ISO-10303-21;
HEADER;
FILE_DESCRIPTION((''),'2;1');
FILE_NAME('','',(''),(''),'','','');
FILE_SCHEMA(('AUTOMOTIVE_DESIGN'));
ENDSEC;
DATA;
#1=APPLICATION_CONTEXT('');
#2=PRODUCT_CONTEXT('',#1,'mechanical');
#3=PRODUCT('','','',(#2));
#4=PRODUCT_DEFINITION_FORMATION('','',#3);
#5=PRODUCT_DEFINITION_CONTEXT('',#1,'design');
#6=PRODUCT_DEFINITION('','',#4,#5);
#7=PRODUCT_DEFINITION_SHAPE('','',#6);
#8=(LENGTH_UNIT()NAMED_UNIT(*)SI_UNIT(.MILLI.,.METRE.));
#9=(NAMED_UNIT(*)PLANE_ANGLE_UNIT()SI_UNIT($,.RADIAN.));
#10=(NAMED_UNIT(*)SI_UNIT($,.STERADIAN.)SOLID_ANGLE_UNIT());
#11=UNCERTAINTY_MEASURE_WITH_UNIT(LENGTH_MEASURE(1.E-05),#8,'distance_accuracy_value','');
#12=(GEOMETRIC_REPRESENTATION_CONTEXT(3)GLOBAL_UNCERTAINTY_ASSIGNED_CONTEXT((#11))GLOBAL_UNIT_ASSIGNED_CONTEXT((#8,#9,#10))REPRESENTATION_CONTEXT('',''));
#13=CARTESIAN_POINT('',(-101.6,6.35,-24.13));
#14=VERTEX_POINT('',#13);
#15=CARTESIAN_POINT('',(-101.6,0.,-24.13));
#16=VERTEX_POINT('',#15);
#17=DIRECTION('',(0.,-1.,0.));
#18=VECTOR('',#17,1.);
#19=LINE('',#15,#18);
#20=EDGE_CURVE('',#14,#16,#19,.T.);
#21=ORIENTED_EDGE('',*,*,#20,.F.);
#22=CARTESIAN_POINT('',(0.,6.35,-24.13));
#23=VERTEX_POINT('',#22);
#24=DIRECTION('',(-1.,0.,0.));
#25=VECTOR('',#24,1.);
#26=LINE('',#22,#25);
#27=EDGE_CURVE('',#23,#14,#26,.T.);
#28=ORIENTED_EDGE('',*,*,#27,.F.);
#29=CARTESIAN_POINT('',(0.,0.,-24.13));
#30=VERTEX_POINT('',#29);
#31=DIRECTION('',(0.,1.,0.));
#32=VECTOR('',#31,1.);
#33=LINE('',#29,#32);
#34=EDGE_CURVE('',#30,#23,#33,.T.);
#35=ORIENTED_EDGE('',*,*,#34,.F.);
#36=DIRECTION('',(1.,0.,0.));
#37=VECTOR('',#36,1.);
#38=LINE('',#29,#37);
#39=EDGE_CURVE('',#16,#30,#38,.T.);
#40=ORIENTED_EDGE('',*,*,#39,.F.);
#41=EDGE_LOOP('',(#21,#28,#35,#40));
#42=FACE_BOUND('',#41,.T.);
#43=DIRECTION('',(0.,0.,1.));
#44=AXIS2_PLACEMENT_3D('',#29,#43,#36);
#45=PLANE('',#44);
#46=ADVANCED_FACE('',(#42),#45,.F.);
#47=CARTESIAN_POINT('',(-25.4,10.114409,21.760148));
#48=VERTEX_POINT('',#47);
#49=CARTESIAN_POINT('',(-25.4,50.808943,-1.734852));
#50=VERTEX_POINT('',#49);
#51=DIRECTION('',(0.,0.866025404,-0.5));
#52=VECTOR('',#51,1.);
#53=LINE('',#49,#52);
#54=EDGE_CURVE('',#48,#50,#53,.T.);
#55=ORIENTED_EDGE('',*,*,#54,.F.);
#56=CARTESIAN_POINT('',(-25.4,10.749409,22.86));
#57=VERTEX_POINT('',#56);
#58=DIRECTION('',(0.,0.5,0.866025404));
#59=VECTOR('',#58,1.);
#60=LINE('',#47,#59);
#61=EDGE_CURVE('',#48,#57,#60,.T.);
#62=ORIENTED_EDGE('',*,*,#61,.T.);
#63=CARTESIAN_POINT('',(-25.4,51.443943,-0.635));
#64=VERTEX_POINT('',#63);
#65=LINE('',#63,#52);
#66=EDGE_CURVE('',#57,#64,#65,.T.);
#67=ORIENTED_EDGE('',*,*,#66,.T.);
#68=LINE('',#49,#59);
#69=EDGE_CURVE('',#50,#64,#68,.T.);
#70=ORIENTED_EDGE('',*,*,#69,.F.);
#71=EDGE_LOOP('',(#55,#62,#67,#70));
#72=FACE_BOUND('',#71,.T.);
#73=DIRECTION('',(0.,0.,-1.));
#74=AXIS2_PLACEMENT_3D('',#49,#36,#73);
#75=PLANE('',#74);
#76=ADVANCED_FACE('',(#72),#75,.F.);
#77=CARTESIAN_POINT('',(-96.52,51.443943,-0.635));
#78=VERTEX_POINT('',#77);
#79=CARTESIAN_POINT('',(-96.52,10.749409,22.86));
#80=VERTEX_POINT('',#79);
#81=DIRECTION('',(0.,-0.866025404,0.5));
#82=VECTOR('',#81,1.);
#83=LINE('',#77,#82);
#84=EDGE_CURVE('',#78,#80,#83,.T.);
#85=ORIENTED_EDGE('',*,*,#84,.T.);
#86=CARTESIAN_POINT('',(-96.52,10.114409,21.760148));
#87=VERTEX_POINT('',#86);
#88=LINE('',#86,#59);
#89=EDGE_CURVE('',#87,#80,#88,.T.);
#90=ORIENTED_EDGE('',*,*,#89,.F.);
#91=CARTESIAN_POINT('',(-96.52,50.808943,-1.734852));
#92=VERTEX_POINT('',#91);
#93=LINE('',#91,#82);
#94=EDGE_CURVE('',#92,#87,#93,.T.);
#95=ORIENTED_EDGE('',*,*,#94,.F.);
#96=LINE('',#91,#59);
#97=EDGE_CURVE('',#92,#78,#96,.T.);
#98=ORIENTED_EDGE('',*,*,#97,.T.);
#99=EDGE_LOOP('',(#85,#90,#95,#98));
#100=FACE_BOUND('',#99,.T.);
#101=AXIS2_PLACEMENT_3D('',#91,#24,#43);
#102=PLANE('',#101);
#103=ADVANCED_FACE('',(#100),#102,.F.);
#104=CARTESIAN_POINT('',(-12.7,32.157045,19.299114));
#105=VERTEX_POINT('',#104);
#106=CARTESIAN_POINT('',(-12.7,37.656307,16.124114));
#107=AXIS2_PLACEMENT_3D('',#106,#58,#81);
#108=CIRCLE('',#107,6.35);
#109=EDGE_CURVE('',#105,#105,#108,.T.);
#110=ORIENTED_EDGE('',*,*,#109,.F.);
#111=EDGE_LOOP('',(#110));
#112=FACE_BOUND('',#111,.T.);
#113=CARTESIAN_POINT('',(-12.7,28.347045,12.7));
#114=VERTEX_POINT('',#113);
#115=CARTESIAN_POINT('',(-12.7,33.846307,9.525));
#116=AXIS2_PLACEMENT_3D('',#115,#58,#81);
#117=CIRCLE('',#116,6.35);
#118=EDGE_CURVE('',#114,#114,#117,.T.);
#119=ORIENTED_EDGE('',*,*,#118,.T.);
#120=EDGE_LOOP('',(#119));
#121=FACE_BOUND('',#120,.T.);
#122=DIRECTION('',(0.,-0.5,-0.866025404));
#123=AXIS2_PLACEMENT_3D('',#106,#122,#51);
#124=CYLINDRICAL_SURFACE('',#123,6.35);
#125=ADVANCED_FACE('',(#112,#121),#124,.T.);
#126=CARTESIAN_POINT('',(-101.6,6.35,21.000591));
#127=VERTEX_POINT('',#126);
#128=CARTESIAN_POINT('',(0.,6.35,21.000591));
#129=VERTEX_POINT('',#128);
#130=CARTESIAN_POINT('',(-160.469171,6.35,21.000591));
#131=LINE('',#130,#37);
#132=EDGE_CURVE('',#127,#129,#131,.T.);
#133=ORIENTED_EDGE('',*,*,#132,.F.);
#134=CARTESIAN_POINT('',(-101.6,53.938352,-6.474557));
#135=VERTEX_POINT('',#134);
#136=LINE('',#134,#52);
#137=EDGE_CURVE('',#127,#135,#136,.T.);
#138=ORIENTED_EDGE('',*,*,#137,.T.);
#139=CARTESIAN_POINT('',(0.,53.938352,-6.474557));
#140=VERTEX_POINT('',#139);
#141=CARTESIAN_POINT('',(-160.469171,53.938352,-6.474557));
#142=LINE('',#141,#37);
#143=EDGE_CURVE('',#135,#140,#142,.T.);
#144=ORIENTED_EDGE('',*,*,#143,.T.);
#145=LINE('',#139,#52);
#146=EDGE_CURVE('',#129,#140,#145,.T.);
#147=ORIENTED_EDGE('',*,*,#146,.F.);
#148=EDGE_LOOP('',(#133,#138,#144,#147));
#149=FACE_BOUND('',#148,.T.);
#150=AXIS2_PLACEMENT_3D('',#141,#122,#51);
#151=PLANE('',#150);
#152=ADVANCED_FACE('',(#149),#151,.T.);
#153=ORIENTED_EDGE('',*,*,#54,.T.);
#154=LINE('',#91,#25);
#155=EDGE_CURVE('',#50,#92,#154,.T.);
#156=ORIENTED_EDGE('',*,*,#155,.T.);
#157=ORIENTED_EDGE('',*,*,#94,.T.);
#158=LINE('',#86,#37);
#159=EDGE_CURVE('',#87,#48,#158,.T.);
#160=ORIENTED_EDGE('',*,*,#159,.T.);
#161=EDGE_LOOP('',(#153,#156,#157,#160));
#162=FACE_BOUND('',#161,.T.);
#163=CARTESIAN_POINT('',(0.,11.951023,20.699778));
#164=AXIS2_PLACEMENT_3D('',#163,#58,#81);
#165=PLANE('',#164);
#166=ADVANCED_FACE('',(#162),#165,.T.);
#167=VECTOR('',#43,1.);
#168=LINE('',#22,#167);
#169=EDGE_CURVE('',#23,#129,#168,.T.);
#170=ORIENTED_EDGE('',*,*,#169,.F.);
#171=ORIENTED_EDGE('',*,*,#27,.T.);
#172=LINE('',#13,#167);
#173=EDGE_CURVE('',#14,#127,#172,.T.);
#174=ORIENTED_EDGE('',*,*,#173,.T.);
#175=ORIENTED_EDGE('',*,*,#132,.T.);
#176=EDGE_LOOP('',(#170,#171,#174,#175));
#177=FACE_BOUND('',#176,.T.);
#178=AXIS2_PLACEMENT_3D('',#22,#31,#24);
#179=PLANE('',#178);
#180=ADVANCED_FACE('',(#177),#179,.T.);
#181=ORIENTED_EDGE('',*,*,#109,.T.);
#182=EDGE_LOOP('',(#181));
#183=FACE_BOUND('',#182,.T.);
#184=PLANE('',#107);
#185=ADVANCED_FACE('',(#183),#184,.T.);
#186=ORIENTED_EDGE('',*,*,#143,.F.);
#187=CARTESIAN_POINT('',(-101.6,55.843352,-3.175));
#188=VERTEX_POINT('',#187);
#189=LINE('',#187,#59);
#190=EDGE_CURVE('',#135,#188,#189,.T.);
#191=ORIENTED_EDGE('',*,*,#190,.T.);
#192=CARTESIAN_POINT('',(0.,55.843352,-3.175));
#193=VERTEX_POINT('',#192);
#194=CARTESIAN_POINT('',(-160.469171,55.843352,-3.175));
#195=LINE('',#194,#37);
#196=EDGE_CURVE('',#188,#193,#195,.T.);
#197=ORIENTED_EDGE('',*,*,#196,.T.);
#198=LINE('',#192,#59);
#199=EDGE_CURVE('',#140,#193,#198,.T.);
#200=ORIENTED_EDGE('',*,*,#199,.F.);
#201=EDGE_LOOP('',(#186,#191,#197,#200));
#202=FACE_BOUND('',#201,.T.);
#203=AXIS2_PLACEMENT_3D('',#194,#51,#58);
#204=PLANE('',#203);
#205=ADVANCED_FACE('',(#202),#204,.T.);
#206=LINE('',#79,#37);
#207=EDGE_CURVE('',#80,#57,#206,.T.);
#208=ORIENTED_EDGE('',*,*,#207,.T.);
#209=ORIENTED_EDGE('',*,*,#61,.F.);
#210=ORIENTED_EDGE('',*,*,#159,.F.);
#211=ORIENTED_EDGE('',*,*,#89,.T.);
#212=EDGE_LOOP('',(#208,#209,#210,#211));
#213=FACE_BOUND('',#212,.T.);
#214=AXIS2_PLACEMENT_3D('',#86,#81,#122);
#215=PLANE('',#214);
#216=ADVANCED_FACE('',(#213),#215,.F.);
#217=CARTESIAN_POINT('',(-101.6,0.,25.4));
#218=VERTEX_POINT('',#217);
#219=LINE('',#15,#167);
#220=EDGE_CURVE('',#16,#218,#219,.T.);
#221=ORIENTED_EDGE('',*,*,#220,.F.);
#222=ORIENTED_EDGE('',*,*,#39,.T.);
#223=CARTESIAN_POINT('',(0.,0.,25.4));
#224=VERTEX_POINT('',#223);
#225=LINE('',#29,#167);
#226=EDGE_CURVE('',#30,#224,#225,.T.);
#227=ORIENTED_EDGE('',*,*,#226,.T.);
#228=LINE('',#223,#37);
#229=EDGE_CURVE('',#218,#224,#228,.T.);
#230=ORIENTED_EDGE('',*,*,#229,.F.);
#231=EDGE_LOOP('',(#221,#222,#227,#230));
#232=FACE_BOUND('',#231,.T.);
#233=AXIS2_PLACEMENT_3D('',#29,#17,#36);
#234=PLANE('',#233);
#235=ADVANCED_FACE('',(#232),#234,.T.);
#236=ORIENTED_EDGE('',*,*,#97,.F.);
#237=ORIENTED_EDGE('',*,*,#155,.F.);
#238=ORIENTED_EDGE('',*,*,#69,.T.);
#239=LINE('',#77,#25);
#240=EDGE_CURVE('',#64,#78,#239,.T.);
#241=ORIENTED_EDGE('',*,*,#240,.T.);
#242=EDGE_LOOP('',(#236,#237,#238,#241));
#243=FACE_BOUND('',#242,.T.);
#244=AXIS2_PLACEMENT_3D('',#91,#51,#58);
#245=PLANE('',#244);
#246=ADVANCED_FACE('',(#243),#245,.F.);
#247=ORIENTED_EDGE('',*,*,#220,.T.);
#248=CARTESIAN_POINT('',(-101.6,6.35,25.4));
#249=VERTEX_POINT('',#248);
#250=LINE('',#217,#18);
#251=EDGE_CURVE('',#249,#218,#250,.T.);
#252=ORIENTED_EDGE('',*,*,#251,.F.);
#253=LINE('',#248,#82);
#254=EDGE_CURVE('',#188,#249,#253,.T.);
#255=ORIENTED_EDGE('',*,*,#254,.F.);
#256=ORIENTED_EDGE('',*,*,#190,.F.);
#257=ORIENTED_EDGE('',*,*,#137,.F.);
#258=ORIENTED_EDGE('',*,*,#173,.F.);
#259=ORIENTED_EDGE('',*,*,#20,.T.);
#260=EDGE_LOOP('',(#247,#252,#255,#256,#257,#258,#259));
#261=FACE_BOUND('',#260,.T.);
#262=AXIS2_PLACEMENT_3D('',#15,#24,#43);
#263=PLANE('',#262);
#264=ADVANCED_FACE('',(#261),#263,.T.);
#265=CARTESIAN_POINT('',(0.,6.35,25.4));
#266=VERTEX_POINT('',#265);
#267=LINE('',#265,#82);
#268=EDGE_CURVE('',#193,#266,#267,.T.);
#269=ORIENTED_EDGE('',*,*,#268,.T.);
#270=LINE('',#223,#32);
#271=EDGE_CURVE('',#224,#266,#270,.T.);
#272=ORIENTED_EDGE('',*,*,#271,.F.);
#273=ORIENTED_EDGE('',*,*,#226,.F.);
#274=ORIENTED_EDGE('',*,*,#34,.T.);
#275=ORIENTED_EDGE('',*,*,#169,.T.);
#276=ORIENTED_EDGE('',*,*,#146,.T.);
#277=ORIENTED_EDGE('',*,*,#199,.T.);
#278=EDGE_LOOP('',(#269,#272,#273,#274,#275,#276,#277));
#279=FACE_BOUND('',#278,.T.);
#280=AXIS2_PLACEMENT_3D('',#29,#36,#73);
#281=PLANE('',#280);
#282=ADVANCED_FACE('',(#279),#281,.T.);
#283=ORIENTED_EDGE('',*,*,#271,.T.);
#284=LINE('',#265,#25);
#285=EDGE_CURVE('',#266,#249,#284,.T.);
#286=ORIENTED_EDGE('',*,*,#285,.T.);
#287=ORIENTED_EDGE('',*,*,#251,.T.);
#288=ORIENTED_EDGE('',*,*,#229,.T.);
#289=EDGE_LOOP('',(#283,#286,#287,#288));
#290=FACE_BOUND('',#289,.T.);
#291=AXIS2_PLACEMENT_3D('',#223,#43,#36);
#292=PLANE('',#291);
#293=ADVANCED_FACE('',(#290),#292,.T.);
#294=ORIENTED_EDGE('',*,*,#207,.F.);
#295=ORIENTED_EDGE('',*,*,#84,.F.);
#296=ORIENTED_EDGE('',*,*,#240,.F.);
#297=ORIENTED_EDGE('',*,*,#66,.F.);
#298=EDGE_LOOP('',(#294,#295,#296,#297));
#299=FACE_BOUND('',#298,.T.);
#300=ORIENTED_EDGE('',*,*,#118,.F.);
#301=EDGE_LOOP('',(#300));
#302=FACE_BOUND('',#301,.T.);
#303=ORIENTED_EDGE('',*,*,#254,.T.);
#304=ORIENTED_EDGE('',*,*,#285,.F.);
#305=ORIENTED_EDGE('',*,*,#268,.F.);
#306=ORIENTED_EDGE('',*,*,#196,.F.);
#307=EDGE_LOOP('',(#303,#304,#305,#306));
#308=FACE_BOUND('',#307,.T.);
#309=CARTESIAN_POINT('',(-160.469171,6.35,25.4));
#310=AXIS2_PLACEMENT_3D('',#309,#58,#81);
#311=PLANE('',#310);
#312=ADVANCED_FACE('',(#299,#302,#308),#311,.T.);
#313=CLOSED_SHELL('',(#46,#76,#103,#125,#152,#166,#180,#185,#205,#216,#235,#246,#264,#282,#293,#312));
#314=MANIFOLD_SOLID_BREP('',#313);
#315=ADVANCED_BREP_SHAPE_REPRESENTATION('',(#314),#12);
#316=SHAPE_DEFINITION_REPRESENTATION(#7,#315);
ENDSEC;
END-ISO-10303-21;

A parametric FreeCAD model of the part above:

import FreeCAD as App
import Part
import Sketcher
from FreeCAD import Vector
Q = App.Units.Quantity

doc = App.newDocument("Part")
params = doc.addObject("Spreadsheet::Sheet", "Params")
for row, (alias, value) in enumerate([
    ("sketch1_width", "4 in"),
    ("sketch1_height", "0.25 in"),
    ("pad1_length", "1 in"),
    ("pad1_length2", "0.95 in"),
    ("sketch2_length", "2.25 in"),
    ("sketch2_length2", "0.15 in"),
    ("pad2_length", "4 in"),
    ("sketch3_width", "2.8 in"),
    ("sketch3_height", "1.85 in"),
    ("pocket1_length", "0.05 in"),
    ("sketch4_diameter", "0.5 in"),
    ("pad3_length", "0.3 in"),
], start=1):
    params.set(f"A{row}", alias)
    params.set(f"B{row}", "=" + value)
    params.setAlias(f"B{row}", alias)

body = doc.addObject("PartDesign::Body", "Body")

# Sketch on XY plane
sketch1 = body.newObject("Sketcher::SketchObject", "Sketch")
sketch1.AttachmentSupport = (doc.getObject("XY_Plane"), [""])
sketch1.MapMode = "FlatFace"
sketch1.addGeometry([
    Part.LineSegment(Vector(-102, 6, 0), Vector(-102, 0, 0)),
    Part.LineSegment(Vector(-102, 0, 0), Vector(0, 0, 0)),
    Part.LineSegment(Vector(0, 0, 0), Vector(0, 6, 0)),
    Part.LineSegment(Vector(0, 6, 0), Vector(-102, 6, 0)),
], False)
sketch1.addConstraint([
    Sketcher.Constraint("Coincident", 0, 2, 1, 1),
    Sketcher.Constraint("Coincident", 1, 2, 2, 1),
    Sketcher.Constraint("Coincident", 2, 2, 3, 1),
    Sketcher.Constraint("Coincident", 3, 2, 0, 1),
    Sketcher.Constraint("Vertical", 0),
    Sketcher.Constraint("Horizontal", 1),
    Sketcher.Constraint("Vertical", 2),
    Sketcher.Constraint("Horizontal", 3),
    Sketcher.Constraint("Coincident", 1, 2, -1, 1),
    Sketcher.Constraint("DistanceX", 1, 1, 1, 2, Q("4 in")),
    Sketcher.Constraint("DistanceY", 0, 2, 0, 1, Q("0.25 in")),
])
sketch1.setExpression("Constraints[9]", "Params.sketch1_width")
sketch1.setExpression("Constraints[10]", "Params.sketch1_height")
pad1 = body.newObject("PartDesign::Pad", "Pad")
pad1.Profile = sketch1
pad1.Type = "TwoLengths"
pad1.setExpression("Length", "Params.pad1_length")
pad1.setExpression("Length2", "Params.pad1_length2")

# Sketch on YZ plane
sketch2 = body.newObject("Sketcher::SketchObject", "Sketch001")
sketch2.AttachmentSupport = (doc.getObject("YZ_Plane"), [""])
sketch2.MapMode = "FlatFace"
sketch2.addGeometry([
    Part.LineSegment(Vector(55.8, -3.2, 0), Vector(6.3, 25.4, 0)),
    Part.LineSegment(Vector(6.3, 25.4, 0), Vector(6.3, 21, 0)),
    Part.LineSegment(Vector(6.3, 21, 0), Vector(53.9, -6.5, 0)),
    Part.LineSegment(Vector(53.9, -6.5, 0), Vector(55.8, -3.2, 0)),
], False)
sketch2.addConstraint([
    Sketcher.Constraint("Coincident", 0, 2, 1, 1),
    Sketcher.Constraint("Coincident", 1, 2, 2, 1),
    Sketcher.Constraint("Coincident", 2, 2, 3, 1),
    Sketcher.Constraint("Coincident", 3, 2, 0, 1),
    Sketcher.Constraint("Vertical", 1),
    Sketcher.Constraint("Parallel", 0, 2),
    Sketcher.Constraint("Perpendicular", 2, 3),
    Sketcher.Constraint("DistanceY", -1, 1, 0, 2, Q("1 in")),
    Sketcher.Constraint("Angle", 0, Q("150 deg")),
    Sketcher.Constraint("Distance", 0, Q("2.25 in")),
    Sketcher.Constraint("Distance", 3, Q("0.15 in")),
    Sketcher.Constraint("DistanceX", -1, 1, 0, 2, Q("0.25 in")),
])
sketch2.setExpression("Constraints[9]", "Params.sketch2_length")
sketch2.setExpression("Constraints[10]", "Params.sketch2_length2")
pad2 = body.newObject("PartDesign::Pad", "Pad001")
pad2.Profile = sketch2
pad2.setExpression("Length", "Params.pad2_length")
pad2.Reversed = True

# Sketch on an angled plane
sketch3 = body.newObject("Sketcher::SketchObject", "Sketch002")
sketch3.Placement = App.Placement(Vector(0, 12.586023, 21.799631), App.Rotation(Vector(1, 0, 0), Vector(0, 0.866025404, -0.5), Vector(0, 0.5, 0.866025404), "ZXY"))
sketch3.addGeometry([
    Part.LineSegment(Vector(-97, 45, 0), Vector(-97, -2, 0)),
    Part.LineSegment(Vector(-97, -2, 0), Vector(-25, -2, 0)),
    Part.LineSegment(Vector(-25, -2, 0), Vector(-25, 45, 0)),
    Part.LineSegment(Vector(-25, 45, 0), Vector(-97, 45, 0)),
], False)
sketch3.addConstraint([
    Sketcher.Constraint("Coincident", 0, 2, 1, 1),
    Sketcher.Constraint("Coincident", 1, 2, 2, 1),
    Sketcher.Constraint("Coincident", 2, 2, 3, 1),
    Sketcher.Constraint("Coincident", 3, 2, 0, 1),
    Sketcher.Constraint("Vertical", 0),
    Sketcher.Constraint("Horizontal", 1),
    Sketcher.Constraint("Vertical", 2),
    Sketcher.Constraint("Horizontal", 3),
    Sketcher.Constraint("DistanceX", 1, 1, 1, 2, Q("2.8 in")),
    Sketcher.Constraint("DistanceX", 1, 2, -1, 1, Q("1 in")),
    Sketcher.Constraint("DistanceY", 0, 2, 0, 1, Q("1.85 in")),
    Sketcher.Constraint("DistanceY", 0, 2, -1, 1, Q("2.120739 mm")),
])
sketch3.setExpression("Constraints[8]", "Params.sketch3_width")
sketch3.setExpression("Constraints[10]", "Params.sketch3_height")
pocket1 = body.newObject("PartDesign::Pocket", "Pocket")
pocket1.Profile = sketch3
pocket1.setExpression("Length", "Params.pocket1_length")

# Sketch on an angled plane
sketch4 = body.newObject("Sketcher::SketchObject", "Sketch003")
sketch4.Placement = App.Placement(Vector(0, 12.586023, 21.799631), App.Rotation(Vector(1, 0, 0), Vector(0, 0.866025404, -0.5), Vector(0, 0.5, 0.866025404), "ZXY"))
sketch4.addGeometry(Part.Circle(Vector(-13, 25, 0), Vector(0, 0, 1), 6), False)
sketch4.addConstraint([
    Sketcher.Constraint("Diameter", 0, Q("0.5 in")),
    Sketcher.Constraint("DistanceX", 0, 3, -1, 1, Q("0.5 in")),
    Sketcher.Constraint("DistanceY", -1, 1, 0, 3, Q("24.549261 mm")),
])
sketch4.setExpression("Constraints[0]", "Params.sketch4_diameter")
pad3 = body.newObject("PartDesign::Pad", "Pad002")
pad3.Profile = sketch4
pad3.setExpression("Length", "Params.pad3_length")

doc.recompute()
